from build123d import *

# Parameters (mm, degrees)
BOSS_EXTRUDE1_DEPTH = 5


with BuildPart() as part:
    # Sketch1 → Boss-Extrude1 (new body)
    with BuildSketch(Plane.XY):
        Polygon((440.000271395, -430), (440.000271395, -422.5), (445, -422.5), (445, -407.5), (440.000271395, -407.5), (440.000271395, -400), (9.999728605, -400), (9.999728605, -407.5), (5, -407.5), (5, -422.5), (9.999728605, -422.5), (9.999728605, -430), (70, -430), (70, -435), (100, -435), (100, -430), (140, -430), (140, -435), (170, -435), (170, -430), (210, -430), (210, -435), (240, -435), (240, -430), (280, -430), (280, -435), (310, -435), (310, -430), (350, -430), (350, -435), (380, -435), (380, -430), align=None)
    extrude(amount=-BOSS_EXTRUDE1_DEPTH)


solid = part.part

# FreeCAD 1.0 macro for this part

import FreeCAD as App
import Part
import Sketcher


def add_polygon(sketch, points):
    """Adds a closed chain of lines whose ends are joined by coincident constraints."""
    first, n = sketch.GeometryCount, len(points)
    for a, b in zip(points, points[1:] + points[:1]):
        sketch.addGeometry(Part.LineSegment(App.Vector(*a, 0), App.Vector(*b, 0)), False)
    for i in range(n):
        sketch.addConstraint(Sketcher.Constraint("Coincident", first + i, 2, first + (i + 1) % n, 1))

doc = App.newDocument("Part")
params = doc.addObject("Spreadsheet::Sheet", "Params")
for row, (alias, value) in enumerate([
    ("sketch1_width", "30 mm"),
    ("sketch1_width2", "40 mm"),
    ("sketch1_height", "15 mm"),
    ("sketch1_height2", "5 mm"),
    ("sketch1_height3", "7.5 mm"),
    ("pad1_length", "5 mm"),
], start=1):
    params.set(f"A{row}", alias)
    params.set(f"B{row}", "=" + value)
    params.setAlias(f"B{row}", alias)

body = doc.addObject("PartDesign::Body", "Body")

# Sketch on XY plane
sketch1 = body.newObject("Sketcher::SketchObject", "Sketch")
sketch1.AttachmentSupport = (doc.getObject("XY_Plane"), [""])
sketch1.MapMode = "FlatFace"
add_polygon(sketch1, [(440, -430), (440, -422.5), (445, -422.5), (445, -407.5), (440, -407.5), (440, -400), (10, -400), (10, -407.5), (5, -407.5), (5, -422.5), (10, -422.5), (10, -430), (70, -430), (70, -435), (100, -435), (100, -430), (140, -430), (140, -435), (170, -435), (170, -430), (210, -430), (210, -435), (240, -435), (240, -430), (280, -430), (280, -435), (310, -435), (310, -430), (350, -430), (350, -435), (380, -435), (380, -430)])  # lines 0-31
sketch1.addConstraint([
    Sketcher.Constraint("Vertical", 0),
    Sketcher.Constraint("Horizontal", 1),
    Sketcher.Constraint("Vertical", 2),
    Sketcher.Constraint("Horizontal", 3),
    Sketcher.Constraint("Vertical", 4),
    Sketcher.Constraint("Horizontal", 5),
    Sketcher.Constraint("Vertical", 6),
    Sketcher.Constraint("Horizontal", 7),
    Sketcher.Constraint("Vertical", 8),
    Sketcher.Constraint("Horizontal", 9),
    Sketcher.Constraint("Vertical", 10),
    Sketcher.Constraint("Horizontal", 11),
    Sketcher.Constraint("Vertical", 12),
    Sketcher.Constraint("Horizontal", 13),
    Sketcher.Constraint("Vertical", 14),
    Sketcher.Constraint("Horizontal", 15),
    Sketcher.Constraint("Vertical", 16),
    Sketcher.Constraint("Horizontal", 17),
    Sketcher.Constraint("Vertical", 18),
    Sketcher.Constraint("Horizontal", 19),
    Sketcher.Constraint("Vertical", 20),
    Sketcher.Constraint("Horizontal", 21),
    Sketcher.Constraint("Vertical", 22),
    Sketcher.Constraint("Horizontal", 23),
    Sketcher.Constraint("Vertical", 24),
    Sketcher.Constraint("Horizontal", 25),
    Sketcher.Constraint("Vertical", 26),
    Sketcher.Constraint("Horizontal", 27),
    Sketcher.Constraint("Vertical", 28),
    Sketcher.Constraint("Horizontal", 29),
    Sketcher.Constraint("Vertical", 30),
    Sketcher.Constraint("Horizontal", 31),
    Sketcher.Constraint("Horizontal", 3, 2, 6, 2),
    Sketcher.Constraint("Horizontal", 1, 2, 8, 2),
    Sketcher.Constraint("Horizontal", 11, 2, 14, 2),
    Sketcher.Constraint("Horizontal", 13, 2, 16, 2),
    Sketcher.Constraint("Horizontal", 15, 2, 18, 2),
    Sketcher.Constraint("Horizontal", 17, 2, 20, 2),
    Sketcher.Constraint("Horizontal", 19, 2, 22, 2),
    Sketcher.Constraint("Horizontal", 21, 2, 24, 2),
    Sketcher.Constraint("Horizontal", 23, 2, 26, 2),
    Sketcher.Constraint("Horizontal", 25, 2, 28, 2),
    Sketcher.Constraint("Horizontal", 27, 2, 30, 2),
    Sketcher.Constraint("Vertical", 0, 2, 3, 2),
    Sketcher.Constraint("Vertical", 6, 2, 9, 2),
    Sketcher.Constraint("Equal", 3, 7),
    Sketcher.Constraint("Equal", 13, 17),
    Sketcher.Constraint("Equal", 15, 19),
    Sketcher.Constraint("Equal", 17, 21),
    Sketcher.Constraint("Equal", 19, 23),
    Sketcher.Constraint("Equal", 21, 25),
    Sketcher.Constraint("Equal", 23, 27),
    Sketcher.Constraint("Equal", 25, 29),
    Sketcher.Constraint("Equal", 11, 31),
    Sketcher.Constraint("Equal", 0, 4),
    Sketcher.Constraint("DistanceX", 13, 1, 13, 2, 30.0),
    Sketcher.Constraint("DistanceX", 15, 1, 15, 2, 40.0),
    Sketcher.Constraint("DistanceY", 2, 1, 2, 2, 15.0),
    Sketcher.Constraint("DistanceY", 12, 2, 12, 1, 5.0),
    Sketcher.Constraint("DistanceY", 0, 1, 0, 2, 7.5),
    Sketcher.Constraint("DistanceX", -1, 1, 1, 2, 445.0),
    Sketcher.Constraint("DistanceY", 4, 2, -1, 1, 400.0),
    Sketcher.Constraint("DistanceX", -1, 1, 7, 2, 5.0),
    Sketcher.Constraint("DistanceX", 1, 1, 1, 2, 4.999729),
])
sketch1.setExpression("Constraints[87]", "Params.sketch1_width")
sketch1.setExpression("Constraints[88]", "Params.sketch1_width2")
sketch1.setExpression("Constraints[89]", "Params.sketch1_height")
sketch1.setExpression("Constraints[90]", "Params.sketch1_height2")
sketch1.setExpression("Constraints[91]", "Params.sketch1_height3")
pad1 = body.newObject("PartDesign::Pad", "Pad")
pad1.Profile = sketch1
pad1.setExpression("Length", "Params.pad1_length")
pad1.Reversed = True

doc.recompute()
